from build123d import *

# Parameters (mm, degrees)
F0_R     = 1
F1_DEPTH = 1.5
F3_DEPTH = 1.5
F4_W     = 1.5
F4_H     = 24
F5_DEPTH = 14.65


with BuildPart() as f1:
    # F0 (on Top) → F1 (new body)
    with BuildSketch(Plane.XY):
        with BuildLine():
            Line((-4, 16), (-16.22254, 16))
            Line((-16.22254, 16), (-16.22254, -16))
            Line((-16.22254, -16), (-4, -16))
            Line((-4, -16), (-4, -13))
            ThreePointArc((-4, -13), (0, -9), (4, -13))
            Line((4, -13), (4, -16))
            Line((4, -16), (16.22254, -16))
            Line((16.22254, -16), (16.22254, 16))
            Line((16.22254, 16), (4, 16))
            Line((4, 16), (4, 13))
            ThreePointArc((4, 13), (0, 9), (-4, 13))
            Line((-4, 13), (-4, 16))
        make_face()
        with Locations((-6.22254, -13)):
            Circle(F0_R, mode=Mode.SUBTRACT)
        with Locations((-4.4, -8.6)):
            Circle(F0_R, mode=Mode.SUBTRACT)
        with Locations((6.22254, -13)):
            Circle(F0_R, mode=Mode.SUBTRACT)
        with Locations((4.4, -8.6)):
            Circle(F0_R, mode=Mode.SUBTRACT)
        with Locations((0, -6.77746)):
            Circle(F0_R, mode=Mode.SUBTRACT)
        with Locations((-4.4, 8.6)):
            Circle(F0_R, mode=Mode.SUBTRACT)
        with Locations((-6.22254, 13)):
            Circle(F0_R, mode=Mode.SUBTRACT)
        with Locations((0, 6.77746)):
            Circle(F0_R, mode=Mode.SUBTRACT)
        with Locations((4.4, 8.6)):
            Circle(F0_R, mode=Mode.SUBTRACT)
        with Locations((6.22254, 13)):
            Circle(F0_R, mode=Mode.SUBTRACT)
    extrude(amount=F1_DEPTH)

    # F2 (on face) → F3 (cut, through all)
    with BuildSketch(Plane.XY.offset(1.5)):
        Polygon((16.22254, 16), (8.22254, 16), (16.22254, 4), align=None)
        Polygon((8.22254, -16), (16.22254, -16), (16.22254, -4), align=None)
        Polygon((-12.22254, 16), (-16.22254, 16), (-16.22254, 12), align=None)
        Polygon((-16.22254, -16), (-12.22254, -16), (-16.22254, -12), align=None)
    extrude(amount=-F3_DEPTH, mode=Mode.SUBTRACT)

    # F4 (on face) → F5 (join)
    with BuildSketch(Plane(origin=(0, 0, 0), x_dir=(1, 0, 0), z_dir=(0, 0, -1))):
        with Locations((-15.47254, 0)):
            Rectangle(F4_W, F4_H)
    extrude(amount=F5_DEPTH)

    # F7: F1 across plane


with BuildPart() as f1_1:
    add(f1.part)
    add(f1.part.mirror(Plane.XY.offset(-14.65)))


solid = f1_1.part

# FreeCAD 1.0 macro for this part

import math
import FreeCAD as App
import Part
import Sketcher
Q = App.Units.Quantity

doc = App.newDocument("Part")
params = doc.addObject("Spreadsheet::Sheet", "Params")
for row, (alias, value) in enumerate([
    ("sketch1_diameter", "2 mm"),
    ("sketch1_radius", "4 mm"),
    ("sketch1_height", "32 mm"),
    ("sketch1_height2", "3 mm"),
    ("pad1_length", "1.5 mm"),
    ("sketch2_width", "8 mm"),
    ("sketch2_width2", "4 mm"),
    ("sketch2_height", "12 mm"),
    ("sketch3_height", "24 mm"),
    ("sketch3_width", "1.5 mm"),
    ("pad2_length", "14.65 mm"),
], start=1):
    params.set(f"A{row}", alias)
    params.set(f"B{row}", "=" + value)
    params.setAlias(f"B{row}", alias)

body = doc.addObject("PartDesign::Body", "Body")

sketch1 = body.newObject("Sketcher::SketchObject", "Sketch")
sketch1.AttachmentSupport = (doc.getObject("XY_Plane"), [""])
sketch1.MapMode = "FlatFace"
sketch1.addGeometry([
    Part.LineSegment(App.Vector(-4, 16, 0), App.Vector(-16.22254, 16, 0)),
    Part.LineSegment(App.Vector(-16.22254, 16, 0), App.Vector(-16.22254, -16, 0)),
    Part.LineSegment(App.Vector(-16.22254, -16, 0), App.Vector(-4, -16, 0)),
    Part.LineSegment(App.Vector(-4, -16, 0), App.Vector(-4, -13, 0)),
    Part.ArcOfCircle(Part.Circle(App.Vector(0, -13, 0), App.Vector(0, 0, 1), 4), math.radians(0), math.radians(180)),
    Part.LineSegment(App.Vector(4, -13, 0), App.Vector(4, -16, 0)),
    Part.LineSegment(App.Vector(4, -16, 0), App.Vector(16.22254, -16, 0)),
    Part.LineSegment(App.Vector(16.22254, -16, 0), App.Vector(16.22254, 16, 0)),
    Part.LineSegment(App.Vector(16.22254, 16, 0), App.Vector(4, 16, 0)),
    Part.LineSegment(App.Vector(4, 16, 0), App.Vector(4, 13, 0)),
    Part.ArcOfCircle(Part.Circle(App.Vector(0, 13, 0), App.Vector(0, 0, 1), 4), math.radians(180), math.radians(360)),
    Part.LineSegment(App.Vector(-4, 13, 0), App.Vector(-4, 16, 0)),
    Part.Circle(App.Vector(-6.22254, -13, 0), App.Vector(0, 0, 1), 1),
    Part.Circle(App.Vector(-4.4, -8.6, 0), App.Vector(0, 0, 1), 1),
    Part.Circle(App.Vector(6.22254, -13, 0), App.Vector(0, 0, 1), 1),
    Part.Circle(App.Vector(4.4, -8.6, 0), App.Vector(0, 0, 1), 1),
    Part.Circle(App.Vector(0, -6.77746, 0), App.Vector(0, 0, 1), 1),
    Part.Circle(App.Vector(-4.4, 8.6, 0), App.Vector(0, 0, 1), 1),
    Part.Circle(App.Vector(-6.22254, 13, 0), App.Vector(0, 0, 1), 1),
    Part.Circle(App.Vector(0, 6.77746, 0), App.Vector(0, 0, 1), 1),
    Part.Circle(App.Vector(4.4, 8.6, 0), App.Vector(0, 0, 1), 1),
    Part.Circle(App.Vector(6.22254, 13, 0), App.Vector(0, 0, 1), 1),
], False)
sketch1.addConstraint([
    Sketcher.Constraint("Coincident", 0, 2, 1, 1),
    Sketcher.Constraint("Coincident", 1, 2, 2, 1),
    Sketcher.Constraint("Coincident", 2, 2, 3, 1),
    Sketcher.Constraint("Tangent", 3, 2, 4, 2),
    Sketcher.Constraint("Tangent", 4, 1, 5, 1),
    Sketcher.Constraint("Coincident", 5, 2, 6, 1),
    Sketcher.Constraint("Coincident", 6, 2, 7, 1),
    Sketcher.Constraint("Coincident", 7, 2, 8, 1),
    Sketcher.Constraint("Coincident", 8, 2, 9, 1),
    Sketcher.Constraint("Tangent", 9, 2, 10, 2),
    Sketcher.Constraint("Tangent", 10, 1, 11, 1),
    Sketcher.Constraint("Coincident", 11, 2, 0, 1),
    Sketcher.Constraint("Horizontal", 0),
    Sketcher.Constraint("Vertical", 1),
    Sketcher.Constraint("Horizontal", 2),
    Sketcher.Constraint("Vertical", 3),
    Sketcher.Constraint("Vertical", 5),
    Sketcher.Constraint("Horizontal", 6),
    Sketcher.Constraint("Vertical", 7),
    Sketcher.Constraint("Horizontal", 8),
    Sketcher.Constraint("Vertical", 9),
    Sketcher.Constraint("Vertical", 11),
    Sketcher.Constraint("Equal", 4, 10),
    Sketcher.Constraint("Equal", 12, 13),
    Sketcher.Constraint("Equal", 13, 14),
    Sketcher.Constraint("Equal", 14, 15),
    Sketcher.Constraint("Equal", 15, 16),
    Sketcher.Constraint("Equal", 16, 17),
    Sketcher.Constraint("Equal", 17, 18),
    Sketcher.Constraint("Equal", 18, 19),
    Sketcher.Constraint("Equal", 19, 20),
    Sketcher.Constraint("Equal", 20, 21),
    Sketcher.Constraint("Symmetric", 4, 3, 10, 3, -1, 1),
    Sketcher.Constraint("Symmetric", 15, 3, 17, 3, -1, 1),
    Sketcher.Constraint("Symmetric", 14, 3, 18, 3, -1, 1),
    Sketcher.Constraint("Symmetric", 16, 3, 19, 3, -1, 1),
    Sketcher.Constraint("Symmetric", 13, 3, 20, 3, -1, 1),
    Sketcher.Constraint("Symmetric", 12, 3, 21, 3, -1, 1),
    Sketcher.Constraint("Symmetric", 0, 2, 6, 2, -1, 1),
    Sketcher.Constraint("Symmetric", 12, 3, 14, 3, -2),
    Sketcher.Constraint("Symmetric", 13, 3, 15, 3, -2),
    Sketcher.Constraint("Symmetric", 2, 2, 5, 2, -2),
    Sketcher.Constraint("PointOnObject", 16, 3, -2),
    Sketcher.Constraint("Horizontal", 4, 3, 12, 3),
    Sketcher.Constraint("Horizontal", 0, 2, 7, 2),
    Sketcher.Constraint("Diameter", 12, Q("2 mm")),
    Sketcher.Constraint("Radius", 4, Q("4 mm")),
    Sketcher.Constraint("DistanceY", 1, 2, 1, 1, Q("32 mm")),
    Sketcher.Constraint("DistanceY", 3, 1, 3, 2, Q("3 mm")),
    Sketcher.Constraint("DistanceX", 0, 2, 18, 3, Q("10 mm")),
    Sketcher.Constraint("DistanceX", 13, 3, -1, 1, Q("4.4 mm")),
    Sketcher.Constraint("DistanceY", 13, 3, -1, 1, Q("8.6 mm")),
    Sketcher.Constraint("DistanceX", 0, 2, 0, 1, Q("12.22254 mm")),
    Sketcher.Constraint("DistanceY", 16, 3, -1, 1, Q("6.77746 mm")),
])
sketch1.setExpression("Constraints[45]", "Params.sketch1_diameter")
sketch1.setExpression("Constraints[46]", "Params.sketch1_radius")
sketch1.setExpression("Constraints[47]", "Params.sketch1_height")
sketch1.setExpression("Constraints[48]", "Params.sketch1_height2")
pad1 = body.newObject("PartDesign::Pad", "Pad")
pad1.Profile = sketch1
pad1.setExpression("Length", "Params.pad1_length")

sketch2 = body.newObject("Sketcher::SketchObject", "Sketch001")
sketch2.AttachmentSupport = (doc.getObject("XY_Plane"), [""])
sketch2.MapMode = "FlatFace"
sketch2.AttachmentOffset = App.Placement(App.Vector(0, 0, 1.5), App.Rotation())
sketch2.addGeometry([
    Part.LineSegment(App.Vector(16.22254, 16, 0), App.Vector(8.22254, 16, 0)),
    Part.LineSegment(App.Vector(8.22254, 16, 0), App.Vector(16.22254, 4, 0)),
    Part.LineSegment(App.Vector(16.22254, 4, 0), App.Vector(16.22254, 16, 0)),
    Part.LineSegment(App.Vector(8.22254, -16, 0), App.Vector(16.22254, -16, 0)),
    Part.LineSegment(App.Vector(16.22254, -16, 0), App.Vector(16.22254, -4, 0)),
    Part.LineSegment(App.Vector(16.22254, -4, 0), App.Vector(8.22254, -16, 0)),
    Part.LineSegment(App.Vector(-12.22254, 16, 0), App.Vector(-16.22254, 16, 0)),
    Part.LineSegment(App.Vector(-16.22254, 16, 0), App.Vector(-16.22254, 12, 0)),
    Part.LineSegment(App.Vector(-16.22254, 12, 0), App.Vector(-12.22254, 16, 0)),
    Part.LineSegment(App.Vector(-16.22254, -16, 0), App.Vector(-12.22254, -16, 0)),
    Part.LineSegment(App.Vector(-12.22254, -16, 0), App.Vector(-16.22254, -12, 0)),
    Part.LineSegment(App.Vector(-16.22254, -12, 0), App.Vector(-16.22254, -16, 0)),
], False)
sketch2.addConstraint([
    Sketcher.Constraint("Coincident", 0, 2, 1, 1),
    Sketcher.Constraint("Coincident", 1, 2, 2, 1),
    Sketcher.Constraint("Coincident", 2, 2, 0, 1),
    Sketcher.Constraint("Coincident", 3, 2, 4, 1),
    Sketcher.Constraint("Coincident", 4, 2, 5, 1),
    Sketcher.Constraint("Coincident", 5, 2, 3, 1),
    Sketcher.Constraint("Coincident", 6, 2, 7, 1),
    Sketcher.Constraint("Coincident", 7, 2, 8, 1),
    Sketcher.Constraint("Coincident", 8, 2, 6, 1),
    Sketcher.Constraint("Coincident", 9, 2, 10, 1),
    Sketcher.Constraint("Coincident", 10, 2, 11, 1),
    Sketcher.Constraint("Coincident", 11, 2, 9, 1),
    Sketcher.Constraint("Horizontal", 0),
    Sketcher.Constraint("Vertical", 2),
    Sketcher.Constraint("Horizontal", 3),
    Sketcher.Constraint("Vertical", 4),
    Sketcher.Constraint("Horizontal", 6),
    Sketcher.Constraint("Vertical", 7),
    Sketcher.Constraint("Horizontal", 9),
    Sketcher.Constraint("Vertical", 11),
    Sketcher.Constraint("Symmetric", 3, 2, 6, 2, -1, 1),
    Sketcher.Constraint("Symmetric", 2, 2, 11, 2, -1, 1),
    Sketcher.Constraint("Symmetric", 2, 2, 6, 2, -2),
    Sketcher.Constraint("Perpendicular", 8, 10),
    Sketcher.Constraint("Vertical", 0, 2, 5, 2),
    Sketcher.Constraint("Vertical", 8, 2, 9, 2),
    Sketcher.Constraint("Equal", 2, 4),
    Sketcher.Constraint("Equal", 9, 7),
    Sketcher.Constraint("DistanceX", 0, 2, 0, 1, Q("8 mm")),
    Sketcher.Constraint("DistanceX", 6, 2, 6, 1, Q("4 mm")),
    Sketcher.Constraint("DistanceY", 2, 1, 2, 2, Q("12 mm")),
    Sketcher.Constraint("DistanceY", -1, 1, 0, 2, Q("16 mm")),
    Sketcher.Constraint("DistanceX", -1, 1, 0, 2, Q("8.22254 mm")),
])
sketch2.setExpression("Constraints[28]", "Params.sketch2_width")
sketch2.setExpression("Constraints[29]", "Params.sketch2_width2")
sketch2.setExpression("Constraints[30]", "Params.sketch2_height")
pocket1 = body.newObject("PartDesign::Pocket", "Pocket")
pocket1.Profile = sketch2
pocket1.Type = "ThroughAll"

sketch3 = body.newObject("Sketcher::SketchObject", "Sketch002")
sketch3.AttachmentSupport = (doc.getObject("XY_Plane"), [""])
sketch3.MapMode = "FlatFace"
sketch3.addGeometry([
    Part.LineSegment(App.Vector(-16.22254, -12, 0), App.Vector(-16.22254, 12, 0)),
    Part.LineSegment(App.Vector(-16.22254, 12, 0), App.Vector(-14.72254, 12, 0)),
    Part.LineSegment(App.Vector(-14.72254, 12, 0), App.Vector(-14.72254, -12, 0)),
    Part.LineSegment(App.Vector(-14.72254, -12, 0), App.Vector(-16.22254, -12, 0)),
], False)
sketch3.addConstraint([
    Sketcher.Constraint("Coincident", 0, 2, 1, 1),
    Sketcher.Constraint("Coincident", 1, 2, 2, 1),
    Sketcher.Constraint("Coincident", 2, 2, 3, 1),
    Sketcher.Constraint("Coincident", 3, 2, 0, 1),
    Sketcher.Constraint("Vertical", 0),
    Sketcher.Constraint("Horizontal", 1),
    Sketcher.Constraint("Vertical", 2),
    Sketcher.Constraint("Horizontal", 3),
    Sketcher.Constraint("DistanceY", 0, 1, 0, 2, Q("24 mm")),
    Sketcher.Constraint("DistanceX", 1, 1, 1, 2, Q("1.5 mm")),
    Sketcher.Constraint("DistanceY", -1, 1, 0, 2, Q("12 mm")),
    Sketcher.Constraint("DistanceX", 0, 2, -1, 1, Q("16.22254 mm")),
])
sketch3.setExpression("Constraints[8]", "Params.sketch3_height")
sketch3.setExpression("Constraints[9]", "Params.sketch3_width")
pad2 = body.newObject("PartDesign::Pad", "Pad001")
pad2.Profile = sketch3
pad2.setExpression("Length", "Params.pad2_length")
pad2.Reversed = True
body2 = doc.addObject("PartDesign::Body", "Body001")
doc.recompute()

body2.BaseFeature = body
doc.recompute()

mirroring = doc.addObject("Part::Mirroring", "Mirroring")
mirroring.Source = body
mirroring.Base = App.Vector(0, 0, -14.65)
mirroring.Normal = App.Vector(0, 0, 1)
body3 = doc.addObject("PartDesign::Body", "Body002")
body3.BaseFeature = mirroring
boolean = body2.newObject("PartDesign::Boolean", "Boolean")
boolean.Type = "Fuse"
boolean.addObjects([body3])
doc.recompute()
mirroring.Visibility = False

doc.recompute()
